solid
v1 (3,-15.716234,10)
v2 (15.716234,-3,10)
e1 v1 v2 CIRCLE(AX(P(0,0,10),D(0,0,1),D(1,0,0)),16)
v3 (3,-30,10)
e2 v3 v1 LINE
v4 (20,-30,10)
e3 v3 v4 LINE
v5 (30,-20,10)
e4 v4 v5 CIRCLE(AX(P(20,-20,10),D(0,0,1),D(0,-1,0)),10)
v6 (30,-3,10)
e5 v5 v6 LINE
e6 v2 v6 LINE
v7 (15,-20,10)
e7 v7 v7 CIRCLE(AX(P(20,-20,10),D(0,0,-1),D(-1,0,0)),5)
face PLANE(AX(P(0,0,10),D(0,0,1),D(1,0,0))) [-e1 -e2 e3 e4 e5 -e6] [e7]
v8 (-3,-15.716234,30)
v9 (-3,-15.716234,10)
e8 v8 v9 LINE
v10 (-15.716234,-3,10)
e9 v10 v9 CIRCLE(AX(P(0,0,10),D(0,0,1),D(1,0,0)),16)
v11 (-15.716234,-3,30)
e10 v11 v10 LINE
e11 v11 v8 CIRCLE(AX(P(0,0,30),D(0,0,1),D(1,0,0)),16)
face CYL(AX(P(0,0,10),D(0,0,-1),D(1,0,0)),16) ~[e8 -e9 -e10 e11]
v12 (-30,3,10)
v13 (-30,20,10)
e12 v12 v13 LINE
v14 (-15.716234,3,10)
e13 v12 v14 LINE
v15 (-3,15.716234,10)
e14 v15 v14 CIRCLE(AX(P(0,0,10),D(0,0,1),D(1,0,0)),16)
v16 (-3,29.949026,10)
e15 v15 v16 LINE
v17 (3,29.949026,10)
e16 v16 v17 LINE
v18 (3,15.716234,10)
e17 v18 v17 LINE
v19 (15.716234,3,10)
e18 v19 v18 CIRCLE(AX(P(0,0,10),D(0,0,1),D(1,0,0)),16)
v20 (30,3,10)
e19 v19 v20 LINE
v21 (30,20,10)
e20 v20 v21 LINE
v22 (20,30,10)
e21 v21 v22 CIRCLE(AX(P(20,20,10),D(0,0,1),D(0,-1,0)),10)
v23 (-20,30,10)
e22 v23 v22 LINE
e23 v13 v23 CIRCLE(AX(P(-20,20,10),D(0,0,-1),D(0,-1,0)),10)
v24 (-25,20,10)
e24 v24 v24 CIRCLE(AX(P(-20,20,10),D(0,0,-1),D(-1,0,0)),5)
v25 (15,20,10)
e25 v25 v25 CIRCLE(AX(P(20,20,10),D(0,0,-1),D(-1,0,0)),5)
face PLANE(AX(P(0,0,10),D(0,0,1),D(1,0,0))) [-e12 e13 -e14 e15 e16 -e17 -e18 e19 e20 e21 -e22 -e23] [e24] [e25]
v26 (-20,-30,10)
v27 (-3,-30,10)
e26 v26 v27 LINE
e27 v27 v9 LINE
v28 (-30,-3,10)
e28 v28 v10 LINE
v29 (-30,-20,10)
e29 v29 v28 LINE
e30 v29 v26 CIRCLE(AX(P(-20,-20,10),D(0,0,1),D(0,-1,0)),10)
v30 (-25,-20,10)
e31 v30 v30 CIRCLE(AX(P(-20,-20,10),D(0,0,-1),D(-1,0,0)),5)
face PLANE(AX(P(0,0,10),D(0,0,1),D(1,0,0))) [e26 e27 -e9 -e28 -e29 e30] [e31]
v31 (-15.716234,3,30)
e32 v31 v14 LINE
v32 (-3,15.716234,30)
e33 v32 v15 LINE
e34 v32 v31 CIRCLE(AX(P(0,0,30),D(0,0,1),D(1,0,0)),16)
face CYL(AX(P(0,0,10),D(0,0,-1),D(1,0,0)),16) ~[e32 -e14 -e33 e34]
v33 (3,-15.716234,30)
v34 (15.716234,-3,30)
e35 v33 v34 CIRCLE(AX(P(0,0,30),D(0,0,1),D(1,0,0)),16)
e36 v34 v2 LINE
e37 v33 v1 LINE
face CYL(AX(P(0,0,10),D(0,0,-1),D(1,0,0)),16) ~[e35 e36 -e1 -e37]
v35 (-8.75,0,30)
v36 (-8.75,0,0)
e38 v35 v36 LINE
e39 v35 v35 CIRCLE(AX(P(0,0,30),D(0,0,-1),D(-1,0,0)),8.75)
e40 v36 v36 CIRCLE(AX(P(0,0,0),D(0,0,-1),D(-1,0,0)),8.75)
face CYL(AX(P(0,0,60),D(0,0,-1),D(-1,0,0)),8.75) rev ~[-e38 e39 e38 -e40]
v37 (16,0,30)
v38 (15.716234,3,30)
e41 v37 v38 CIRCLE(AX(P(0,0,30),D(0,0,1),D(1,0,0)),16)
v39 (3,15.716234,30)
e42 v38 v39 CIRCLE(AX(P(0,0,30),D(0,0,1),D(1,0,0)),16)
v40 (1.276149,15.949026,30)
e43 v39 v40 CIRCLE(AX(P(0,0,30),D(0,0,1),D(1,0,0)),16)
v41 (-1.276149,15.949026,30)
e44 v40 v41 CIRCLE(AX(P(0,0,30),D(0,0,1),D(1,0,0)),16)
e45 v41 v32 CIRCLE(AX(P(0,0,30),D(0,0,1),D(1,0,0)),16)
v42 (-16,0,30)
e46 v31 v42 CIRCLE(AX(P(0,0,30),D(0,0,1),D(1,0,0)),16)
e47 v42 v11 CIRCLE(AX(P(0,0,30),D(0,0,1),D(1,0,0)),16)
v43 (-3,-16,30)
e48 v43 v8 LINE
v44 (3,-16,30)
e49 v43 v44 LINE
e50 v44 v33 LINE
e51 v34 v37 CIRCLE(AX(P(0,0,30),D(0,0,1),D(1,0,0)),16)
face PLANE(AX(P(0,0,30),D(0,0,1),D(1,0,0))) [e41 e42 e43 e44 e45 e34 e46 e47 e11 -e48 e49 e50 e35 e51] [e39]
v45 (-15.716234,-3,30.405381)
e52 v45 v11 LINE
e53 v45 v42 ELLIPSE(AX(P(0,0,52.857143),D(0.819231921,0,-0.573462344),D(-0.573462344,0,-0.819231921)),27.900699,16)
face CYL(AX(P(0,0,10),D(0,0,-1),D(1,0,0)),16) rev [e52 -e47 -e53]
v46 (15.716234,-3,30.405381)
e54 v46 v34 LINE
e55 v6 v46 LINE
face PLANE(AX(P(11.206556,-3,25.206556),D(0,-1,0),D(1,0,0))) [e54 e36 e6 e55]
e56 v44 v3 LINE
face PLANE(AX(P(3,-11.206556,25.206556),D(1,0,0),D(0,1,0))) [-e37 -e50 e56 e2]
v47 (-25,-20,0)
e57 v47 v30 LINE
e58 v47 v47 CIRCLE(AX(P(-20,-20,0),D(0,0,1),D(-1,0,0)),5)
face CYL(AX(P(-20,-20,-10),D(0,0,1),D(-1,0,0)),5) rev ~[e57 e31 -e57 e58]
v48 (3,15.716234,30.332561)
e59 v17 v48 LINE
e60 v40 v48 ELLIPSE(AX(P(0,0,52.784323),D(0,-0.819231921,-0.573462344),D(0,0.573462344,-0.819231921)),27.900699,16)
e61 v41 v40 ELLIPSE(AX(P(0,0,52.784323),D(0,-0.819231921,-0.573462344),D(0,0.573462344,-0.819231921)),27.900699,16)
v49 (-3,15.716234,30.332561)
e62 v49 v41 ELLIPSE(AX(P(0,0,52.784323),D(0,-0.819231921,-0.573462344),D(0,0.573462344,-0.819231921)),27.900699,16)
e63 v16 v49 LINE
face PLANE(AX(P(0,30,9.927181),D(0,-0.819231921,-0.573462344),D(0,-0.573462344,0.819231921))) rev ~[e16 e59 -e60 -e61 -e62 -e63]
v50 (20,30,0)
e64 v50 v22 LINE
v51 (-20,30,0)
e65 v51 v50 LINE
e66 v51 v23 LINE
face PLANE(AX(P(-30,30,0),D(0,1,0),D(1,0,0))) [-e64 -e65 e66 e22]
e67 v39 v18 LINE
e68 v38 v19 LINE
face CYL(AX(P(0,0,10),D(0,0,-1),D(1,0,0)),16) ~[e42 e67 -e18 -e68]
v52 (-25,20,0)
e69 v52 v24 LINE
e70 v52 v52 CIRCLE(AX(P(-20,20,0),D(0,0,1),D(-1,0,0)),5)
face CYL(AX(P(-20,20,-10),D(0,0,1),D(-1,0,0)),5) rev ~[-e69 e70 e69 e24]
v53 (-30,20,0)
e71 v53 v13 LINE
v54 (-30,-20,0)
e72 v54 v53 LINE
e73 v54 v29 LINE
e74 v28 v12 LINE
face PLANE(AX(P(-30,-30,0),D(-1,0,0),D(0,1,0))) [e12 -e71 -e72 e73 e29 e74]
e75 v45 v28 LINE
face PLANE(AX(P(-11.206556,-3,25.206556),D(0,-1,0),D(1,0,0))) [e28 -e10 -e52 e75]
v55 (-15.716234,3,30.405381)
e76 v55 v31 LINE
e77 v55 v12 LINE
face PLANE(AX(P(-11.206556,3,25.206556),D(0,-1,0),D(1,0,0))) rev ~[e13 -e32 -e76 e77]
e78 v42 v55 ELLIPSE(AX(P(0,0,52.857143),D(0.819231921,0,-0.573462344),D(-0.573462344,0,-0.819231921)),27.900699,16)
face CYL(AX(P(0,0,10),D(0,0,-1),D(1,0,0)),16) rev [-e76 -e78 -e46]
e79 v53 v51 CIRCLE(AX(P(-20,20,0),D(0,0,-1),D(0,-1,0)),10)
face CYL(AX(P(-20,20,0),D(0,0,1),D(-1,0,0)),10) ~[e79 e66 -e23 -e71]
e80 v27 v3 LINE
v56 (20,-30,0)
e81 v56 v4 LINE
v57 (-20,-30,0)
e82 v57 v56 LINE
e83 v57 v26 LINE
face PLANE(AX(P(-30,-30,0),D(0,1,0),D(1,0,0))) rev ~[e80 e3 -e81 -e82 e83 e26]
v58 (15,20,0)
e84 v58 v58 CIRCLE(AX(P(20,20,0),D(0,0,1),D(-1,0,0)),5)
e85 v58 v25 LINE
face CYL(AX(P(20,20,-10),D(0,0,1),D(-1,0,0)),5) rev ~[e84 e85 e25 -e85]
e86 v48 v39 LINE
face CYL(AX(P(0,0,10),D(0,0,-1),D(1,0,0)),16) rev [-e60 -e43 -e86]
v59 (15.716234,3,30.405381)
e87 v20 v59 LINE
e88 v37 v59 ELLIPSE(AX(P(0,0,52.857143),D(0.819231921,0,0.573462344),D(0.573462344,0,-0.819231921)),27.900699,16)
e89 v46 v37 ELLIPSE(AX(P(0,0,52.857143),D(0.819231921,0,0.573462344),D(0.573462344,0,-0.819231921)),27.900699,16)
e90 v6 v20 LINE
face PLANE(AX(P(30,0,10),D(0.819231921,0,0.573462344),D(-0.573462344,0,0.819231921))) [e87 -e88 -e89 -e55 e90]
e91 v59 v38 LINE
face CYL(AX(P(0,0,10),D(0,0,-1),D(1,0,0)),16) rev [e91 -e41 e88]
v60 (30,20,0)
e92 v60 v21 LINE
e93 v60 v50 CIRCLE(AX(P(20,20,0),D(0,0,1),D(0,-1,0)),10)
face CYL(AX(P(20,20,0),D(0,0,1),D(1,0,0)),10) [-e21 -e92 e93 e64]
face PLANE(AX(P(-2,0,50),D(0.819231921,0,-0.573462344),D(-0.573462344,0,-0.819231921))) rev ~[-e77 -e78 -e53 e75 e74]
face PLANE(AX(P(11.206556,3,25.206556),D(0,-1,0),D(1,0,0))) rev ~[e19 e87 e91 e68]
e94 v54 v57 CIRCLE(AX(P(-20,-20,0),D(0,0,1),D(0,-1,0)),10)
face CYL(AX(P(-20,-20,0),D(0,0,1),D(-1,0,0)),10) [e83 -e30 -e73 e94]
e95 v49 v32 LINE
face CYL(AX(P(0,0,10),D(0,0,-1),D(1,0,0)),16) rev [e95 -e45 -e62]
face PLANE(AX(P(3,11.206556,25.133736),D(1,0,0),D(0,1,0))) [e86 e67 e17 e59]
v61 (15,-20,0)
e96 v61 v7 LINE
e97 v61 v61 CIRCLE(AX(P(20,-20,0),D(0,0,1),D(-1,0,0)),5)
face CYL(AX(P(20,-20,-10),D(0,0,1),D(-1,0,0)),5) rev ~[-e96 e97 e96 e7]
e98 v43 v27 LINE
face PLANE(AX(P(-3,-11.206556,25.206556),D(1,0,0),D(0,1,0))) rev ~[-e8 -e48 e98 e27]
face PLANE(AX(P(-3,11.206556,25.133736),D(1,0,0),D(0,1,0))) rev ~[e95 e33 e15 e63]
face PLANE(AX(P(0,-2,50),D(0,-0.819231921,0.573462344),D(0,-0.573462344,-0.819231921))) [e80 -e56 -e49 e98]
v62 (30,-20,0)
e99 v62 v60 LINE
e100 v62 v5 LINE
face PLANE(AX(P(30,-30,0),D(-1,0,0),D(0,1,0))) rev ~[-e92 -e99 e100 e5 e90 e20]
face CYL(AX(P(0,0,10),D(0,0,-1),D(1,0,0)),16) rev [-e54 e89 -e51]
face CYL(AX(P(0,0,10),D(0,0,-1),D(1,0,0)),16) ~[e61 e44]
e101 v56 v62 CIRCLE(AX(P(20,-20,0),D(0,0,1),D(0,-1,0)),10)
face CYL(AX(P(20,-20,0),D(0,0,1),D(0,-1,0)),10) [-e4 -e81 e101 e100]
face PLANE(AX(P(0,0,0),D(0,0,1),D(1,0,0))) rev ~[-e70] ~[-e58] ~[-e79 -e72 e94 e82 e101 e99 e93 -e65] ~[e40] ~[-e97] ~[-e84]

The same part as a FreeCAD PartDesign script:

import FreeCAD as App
import Part
import Sketcher
Q = App.Units.Quantity


def edges_at(feature, points):
    """Names of the edges that pass closest to the given points."""
    edges = feature.Shape.Edges
    near = lambda p: min(range(len(edges)), key=lambda i: edges[i].distToShape(Part.Vertex(*p))[0])
    return sorted({f"Edge{near(p) + 1}" for p in points})


def add_polygon(sketch, points):
    """Adds a closed chain of lines whose ends are joined by coincident constraints."""
    first, n = sketch.GeometryCount, len(points)
    for a, b in zip(points, points[1:] + points[:1]):
        sketch.addGeometry(Part.LineSegment(App.Vector(*a, 0), App.Vector(*b, 0)), False)
    for i in range(n):
        sketch.addConstraint(Sketcher.Constraint("Coincident", first + i, 2, first + (i + 1) % n, 1))

doc = App.newDocument("Part")
body = doc.addObject("PartDesign::Body", "Body")

# Sketch on XY plane
sketch1 = body.newObject("Sketcher::SketchObject", "Sketch")
sketch1.AttachmentSupport = (doc.getObject("XY_Plane"), [""])
sketch1.MapMode = "FlatFace"
add_polygon(sketch1, [(-30, 30), (-30, -30), (30, -30), (30, 30)])  # lines 0-3
sketch1.addConstraint(Sketcher.Constraint("Vertical", 0))
sketch1.addConstraint(Sketcher.Constraint("Horizontal", 1))
sketch1.addConstraint(Sketcher.Constraint("Vertical", 2))
sketch1.addConstraint(Sketcher.Constraint("Horizontal", 3))
sketch1.addConstraint(Sketcher.Constraint("Symmetric", 0, 2, 2, 2, -1, 1))
sketch1.addConstraint(Sketcher.Constraint("Equal", 3, 0))
sketch1.addConstraint(Sketcher.Constraint("DistanceX", 1, 1, 1, 2, Q("60 mm")))
pad1 = body.newObject("PartDesign::Pad", "Pad")
pad1.Profile = sketch1
pad1.Length = 10
doc.recompute()

fillet = body.newObject("PartDesign::Fillet", "Fillet")
fillet.Base = (pad1, edges_at(pad1, [
    (-30, 30, 5),
    (30, 30, 5),
    (30, -30, 5),
    (-30, -30, 5),
]))
fillet.Radius = 10

# Sketch on XY plane
sketch2 = body.newObject("Sketcher::SketchObject", "Sketch001")
sketch2.AttachmentSupport = (doc.getObject("XY_Plane"), [""])
sketch2.MapMode = "FlatFace"
sketch2.addGeometry(Part.Circle(App.Vector(-20, 20, 0), App.Vector(0, 0, 1), 5), False)
sketch2.addGeometry(Part.Circle(App.Vector(20, 20, 0), App.Vector(0, 0, 1), 5), False)
sketch2.addGeometry(Part.Circle(App.Vector(20, -20, 0), App.Vector(0, 0, 1), 5), False)
sketch2.addGeometry(Part.Circle(App.Vector(-20, -20, 0), App.Vector(0, 0, 1), 5), False)
sketch2.addConstraint(Sketcher.Constraint("Equal", 0, 1))
sketch2.addConstraint(Sketcher.Constraint("Equal", 1, 2))
sketch2.addConstraint(Sketcher.Constraint("Equal", 2, 3))
sketch2.addConstraint(Sketcher.Constraint("Symmetric", 0, 3, 2, 3, -1, 1))
sketch2.addConstraint(Sketcher.Constraint("Symmetric", 1, 3, 3, 3, -1, 1))
sketch2.addConstraint(Sketcher.Constraint("Symmetric", 0, 3, 1, 3, -2))
sketch2.addConstraint(Sketcher.Constraint("Diameter", 0, Q("10 mm")))
sketch2.addConstraint(Sketcher.Constraint("DistanceX", 0, 3, -1, 1, Q("20 mm")))
sketch2.addConstraint(Sketcher.Constraint("DistanceY", -1, 1, 0, 3, Q("20 mm")))
doc.recompute()
hole = body.newObject("PartDesign::Hole", "Hole")
hole.Profile = sketch2
hole.ThreadType = "None"
hole.Diameter = 10
hole.DepthType = "Dimension"
hole.Depth = 10
hole.DrillPoint = "Angled"
hole.DrillPointAngle = 118
hole.Reversed = True

# Sketch on XZ plane
sketch3 = body.newObject("Sketcher::SketchObject", "Sketch002")
sketch3.AttachmentSupport = (doc.getObject("XZ_Plane"), [""])
sketch3.MapMode = "FlatFace"
add_polygon(sketch3, [(-30, 10), (-2, 10), (-2, 50)])  # lines 0-2
add_polygon(sketch3, [(2, 50), (2, 10), (30, 10)])  # lines 3-5
sketch3.addConstraint(Sketcher.Constraint("Horizontal", 0))
sketch3.addConstraint(Sketcher.Constraint("Vertical", 1))
sketch3.addConstraint(Sketcher.Constraint("Vertical", 3))
sketch3.addConstraint(Sketcher.Constraint("Horizontal", 4))
sketch3.addConstraint(Sketcher.Constraint("Symmetric", 0, 2, 3, 2, -2))
sketch3.addConstraint(Sketcher.Constraint("Horizontal", 1, 2, 5, 2))
sketch3.addConstraint(Sketcher.Constraint("Equal", 0, 4))
sketch3.addConstraint(Sketcher.Constraint("DistanceX", 0, 1, 0, 2, Q("28 mm")))
sketch3.addConstraint(Sketcher.Constraint("DistanceY", 1, 1, 1, 2, Q("40 mm")))
sketch3.addConstraint(Sketcher.Constraint("DistanceX", 0, 2, -1, 1, Q("2 mm")))
sketch3.addConstraint(Sketcher.Constraint("DistanceY", -1, 1, 0, 2, Q("10 mm")))
pad2 = body.newObject("PartDesign::Pad", "Pad001")
pad2.Profile = sketch3
pad2.Length = 6
pad2.Midplane = True

# Sketch on XY plane
sketch4 = body.newObject("Sketcher::SketchObject", "Sketch003")
sketch4.AttachmentSupport = (doc.getObject("XY_Plane"), [""])
sketch4.MapMode = "FlatFace"
sketch4.AttachmentOffset = App.Placement(App.Vector(0, 0, 10), App.Rotation())
sketch4.addGeometry(Part.Circle(App.Vector(0, 0, 0), App.Vector(0, 0, 1), 16), False)
sketch4.addConstraint(Sketcher.Constraint("Coincident", 0, 3, -1, 1))
sketch4.addConstraint(Sketcher.Constraint("Diameter", 0, Q("32 mm")))
pocket1 = body.newObject("PartDesign::Pocket", "Pocket")
pocket1.Profile = sketch4
pocket1.Length = 40
pocket1.Reversed = True

# Sketch on YZ plane
sketch5 = body.newObject("Sketcher::SketchObject", "Sketch004")
sketch5.AttachmentSupport = (doc.getObject("YZ_Plane"), [""])
sketch5.MapMode = "FlatFace"
add_polygon(sketch5, [(2, 9.927181), (30, 9.927181), (2, 49.927181)])  # lines 0-2
add_polygon(sketch5, [(-2, 50), (-30, 10), (-2, 10)])  # lines 3-5
sketch5.addConstraint(Sketcher.Constraint("Horizontal", 0))
sketch5.addConstraint(Sketcher.Constraint("Vertical", 2))
sketch5.addConstraint(Sketcher.Constraint("Horizontal", 4))
sketch5.addConstraint(Sketcher.Constraint("Vertical", 5))
sketch5.addConstraint(Sketcher.Constraint("Equal", 0, 4))
sketch5.addConstraint(Sketcher.Constraint("Equal", 2, 5))
sketch5.addConstraint(Sketcher.Constraint("DistanceX", 0, 1, 0, 2, Q("28 mm")))
sketch5.addConstraint(Sketcher.Constraint("DistanceY", 2, 2, 2, 1, Q("40 mm")))
sketch5.addConstraint(Sketcher.Constraint("DistanceX", -1, 1, 0, 2, Q("30 mm")))
sketch5.addConstraint(Sketcher.Constraint("DistanceX", 3, 2, -1, 1, Q("30 mm")))
sketch5.addConstraint(Sketcher.Constraint("DistanceY", -1, 1, 3, 2, Q("10 mm")))
sketch5.addConstraint(Sketcher.Constraint("DistanceY", -1, 1, 0, 2, Q("9.927181 mm")))
pad3 = body.newObject("PartDesign::Pad", "Pad002")
pad3.Profile = sketch5
pad3.Length = 6
pad3.Midplane = True

# Sketch on XY plane
sketch6 = body.newObject("Sketcher::SketchObject", "Sketch005")
sketch6.AttachmentSupport = (doc.getObject("XY_Plane"), [""])
sketch6.MapMode = "FlatFace"
sketch6.AttachmentOffset = App.Placement(App.Vector(0, 0, 10), App.Rotation())
sketch6.addGeometry(Part.Circle(App.Vector(0, 0, 0), App.Vector(0, 0, 1), 16), False)
sketch6.addConstraint(Sketcher.Constraint("Coincident", 0, 3, -1, 1))
sketch6.addConstraint(Sketcher.Constraint("Diameter", 0, Q("32 mm")))
pocket2 = body.newObject("PartDesign::Pocket", "Pocket001")
pocket2.Profile = sketch6
pocket2.Length = 40
pocket2.Reversed = True

# Sketch on XY plane
sketch7 = body.newObject("Sketcher::SketchObject", "Sketch006")
sketch7.AttachmentSupport = (doc.getObject("XY_Plane"), [""])
sketch7.MapMode = "FlatFace"
sketch7.AttachmentOffset = App.Placement(App.Vector(0, 0, 10), App.Rotation())
sketch7.addGeometry(Part.Circle(App.Vector(0, 0, 0), App.Vector(0, 0, 1), 16), False)
sketch7.addConstraint(Sketcher.Constraint("Coincident", 0, 3, -1, 1))
sketch7.addConstraint(Sketcher.Constraint("Diameter", 0, Q("32 mm")))
pad4 = body.newObject("PartDesign::Pad", "Pad003")
pad4.Profile = sketch7
pad4.Length = 20

# Sketch on XY plane
sketch8 = body.newObject("Sketcher::SketchObject", "Sketch007")
sketch8.AttachmentSupport = (doc.getObject("XY_Plane"), [""])
sketch8.MapMode = "FlatFace"
sketch8.AttachmentOffset = App.Placement(App.Vector(0, 0, 30), App.Rotation())
sketch8.addGeometry(Part.Circle(App.Vector(0, 0, 0), App.Vector(0, 0, 1), 8.75), False)
sketch8.addConstraint(Sketcher.Constraint("Coincident", 0, 3, -1, 1))
sketch8.addConstraint(Sketcher.Constraint("Diameter", 0, Q("17.5 mm")))
doc.recompute()
hole2 = body.newObject("PartDesign::Hole", "Hole001")
hole2.Profile = sketch8
hole2.ThreadType = "None"
hole2.Diameter = 17.5
hole2.DepthType = "Dimension"
hole2.Depth = 30
hole2.DrillPoint = "Angled"
hole2.DrillPointAngle = 118

# Sketch on YZ plane
sketch9 = body.newObject("Sketcher::SketchObject", "Sketch008")
sketch9.AttachmentSupport = (doc.getObject("YZ_Plane"), [""])
sketch9.MapMode = "FlatFace"
sketch9.AttachmentOffset = App.Placement(App.Vector(0, 0, 3), App.Rotation())
add_polygon(sketch9, [(-16, 30), (-15.716234, 30), (-15.716234, 30.405381)])  # lines 0-2
sketch9.addConstraint(Sketcher.Constraint("Horizontal", 0))
sketch9.addConstraint(Sketcher.Constraint("Vertical", 1))
sketch9.addConstraint(Sketcher.Constraint("DistanceY", -1, 1, 0, 2, Q("30 mm")))
sketch9.addConstraint(Sketcher.Constraint("DistanceX", 2, 2, -1, 1, Q("16 mm")))
sketch9.addConstraint(Sketcher.Constraint("DistanceY", 1, 1, 1, 2, Q("0.405381 mm")))
sketch9.addConstraint(Sketcher.Constraint("Distance", 2, Q("0.49483 mm")))
pocket3 = body.newObject("PartDesign::Pocket", "Pocket002")
pocket3.Profile = sketch9
pocket3.Length = 25

doc.recompute()
